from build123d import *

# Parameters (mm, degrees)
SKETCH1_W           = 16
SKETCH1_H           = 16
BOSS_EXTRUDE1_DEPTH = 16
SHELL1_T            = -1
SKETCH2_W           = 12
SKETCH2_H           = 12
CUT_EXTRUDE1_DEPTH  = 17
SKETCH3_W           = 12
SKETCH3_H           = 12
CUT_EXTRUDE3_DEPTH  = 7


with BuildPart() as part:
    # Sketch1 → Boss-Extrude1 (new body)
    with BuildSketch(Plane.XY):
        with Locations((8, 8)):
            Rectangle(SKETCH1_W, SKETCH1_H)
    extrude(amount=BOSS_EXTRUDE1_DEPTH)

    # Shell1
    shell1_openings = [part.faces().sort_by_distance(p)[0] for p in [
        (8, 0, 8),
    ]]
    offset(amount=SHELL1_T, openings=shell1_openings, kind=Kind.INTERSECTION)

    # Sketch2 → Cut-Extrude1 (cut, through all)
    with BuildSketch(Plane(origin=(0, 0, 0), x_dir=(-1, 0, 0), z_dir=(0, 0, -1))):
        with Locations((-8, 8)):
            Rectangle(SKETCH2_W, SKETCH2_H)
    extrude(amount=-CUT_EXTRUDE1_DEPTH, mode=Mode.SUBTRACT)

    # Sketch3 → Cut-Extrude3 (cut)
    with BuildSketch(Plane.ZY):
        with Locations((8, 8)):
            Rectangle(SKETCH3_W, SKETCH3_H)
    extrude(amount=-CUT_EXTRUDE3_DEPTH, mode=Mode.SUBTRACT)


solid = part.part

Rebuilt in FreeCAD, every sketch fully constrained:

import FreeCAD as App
import Part
import Sketcher

V = App.Vector
Q = App.Units.Quantity


def faces_at(feature, points):
    """Names of the faces that lie closest to the given points."""
    faces = feature.Shape.Faces
    near = lambda p: min(range(len(faces)), key=lambda i: faces[i].distToShape(Part.Vertex(*p))[0])
    return sorted({f"Face{near(p) + 1}" for p in points})

doc = App.newDocument("Part")
body = doc.addObject("PartDesign::Body", "Body")

sketch1 = doc.addObject("Sketcher::SketchObject", "Sketch")
body.addObject(sketch1)
sketch1.AttachmentSupport = (doc.XY_Plane, [""])
sketch1.MapMode = "FlatFace"
sketch1.addGeometry([
    Part.LineSegment(V(0, 16, 0), V(0, 0, 0)),
    Part.LineSegment(V(0, 0, 0), V(16, 0, 0)),
    Part.LineSegment(V(16, 0, 0), V(16, 16, 0)),
    Part.LineSegment(V(16, 16, 0), V(0, 16, 0)),
], False)
sketch1.addConstraint([
    Sketcher.Constraint("Coincident", 0, 2, 1, 1),
    Sketcher.Constraint("Coincident", 1, 2, 2, 1),
    Sketcher.Constraint("Coincident", 2, 2, 3, 1),
    Sketcher.Constraint("Coincident", 3, 2, 0, 1),
    Sketcher.Constraint("Vertical", 0),
    Sketcher.Constraint("Horizontal", 1),
    Sketcher.Constraint("Vertical", 2),
    Sketcher.Constraint("Horizontal", 3),
    Sketcher.Constraint("Coincident", 0, 2, -1, 1),
    Sketcher.Constraint("Equal", 3, 0),
    Sketcher.Constraint("DistanceX", 1, 1, 1, 2, Q("16 mm")),
])
pad1 = doc.addObject("PartDesign::Pad", "Pad")
body.addObject(pad1)
pad1.Profile = sketch1
pad1.Length = 16
doc.recompute()

thickness = doc.addObject("PartDesign::Thickness", "Thickness")
body.addObject(thickness)
thickness.Base = (pad1, faces_at(pad1, [(8, 0, 8)]))
thickness.Value = 1
thickness.Reversed = True
thickness.Join = "Intersection"

sketch2 = doc.addObject("Sketcher::SketchObject", "Sketch001")
body.addObject(sketch2)
sketch2.AttachmentSupport = (doc.XY_Plane, [""])
sketch2.MapMode = "FlatFace"
sketch2.addGeometry([
    Part.LineSegment(V(14, 14, 0), V(14, 2, 0)),
    Part.LineSegment(V(14, 2, 0), V(2, 2, 0)),
    Part.LineSegment(V(2, 2, 0), V(2, 14, 0)),
    Part.LineSegment(V(2, 14, 0), V(14, 14, 0)),
], False)
sketch2.addConstraint([
    Sketcher.Constraint("Coincident", 0, 2, 1, 1),
    Sketcher.Constraint("Coincident", 1, 2, 2, 1),
    Sketcher.Constraint("Coincident", 2, 2, 3, 1),
    Sketcher.Constraint("Coincident", 3, 2, 0, 1),
    Sketcher.Constraint("Vertical", 0),
    Sketcher.Constraint("Horizontal", 1),
    Sketcher.Constraint("Vertical", 2),
    Sketcher.Constraint("Horizontal", 3),
    Sketcher.Constraint("Equal", 3, 0),
    Sketcher.Constraint("DistanceX", 1, 2, 1, 1, Q("12 mm")),
    Sketcher.Constraint("DistanceX", -1, 1, 0, 2, Q("14 mm")),
    Sketcher.Constraint("DistanceY", -1, 1, 0, 2, Q("2 mm")),
])
pocket1 = doc.addObject("PartDesign::Pocket", "Pocket")
body.addObject(pocket1)
pocket1.Profile = sketch2
pocket1.Type = "ThroughAll"
pocket1.Reversed = True

sketch3 = doc.addObject("Sketcher::SketchObject", "Sketch002")
body.addObject(sketch3)
sketch3.AttachmentSupport = (doc.YZ_Plane, [""])
sketch3.MapMode = "FlatFace"
sketch3.addGeometry([
    Part.LineSegment(V(14, 2, 0), V(2, 2, 0)),
    Part.LineSegment(V(2, 2, 0), V(2, 14, 0)),
    Part.LineSegment(V(2, 14, 0), V(14, 14, 0)),
    Part.LineSegment(V(14, 14, 0), V(14, 2, 0)),
], False)
sketch3.addConstraint([
    Sketcher.Constraint("Coincident", 0, 2, 1, 1),
    Sketcher.Constraint("Coincident", 1, 2, 2, 1),
    Sketcher.Constraint("Coincident", 2, 2, 3, 1),
    Sketcher.Constraint("Coincident", 3, 2, 0, 1),
    Sketcher.Constraint("Horizontal", 0),
    Sketcher.Constraint("Vertical", 1),
    Sketcher.Constraint("Horizontal", 2),
    Sketcher.Constraint("Vertical", 3),
    Sketcher.Constraint("Equal", 2, 1),
    Sketcher.Constraint("DistanceX", 0, 2, 0, 1, Q("12 mm")),
    Sketcher.Constraint("DistanceX", -1, 1, 0, 2, Q("2 mm")),
    Sketcher.Constraint("DistanceY", -1, 1, 0, 2, Q("2 mm")),
])
pocket2 = doc.addObject("PartDesign::Pocket", "Pocket001")
body.addObject(pocket2)
pocket2.Profile = sketch3
pocket2.Length = 7
pocket2.Reversed = True

doc.recompute()
